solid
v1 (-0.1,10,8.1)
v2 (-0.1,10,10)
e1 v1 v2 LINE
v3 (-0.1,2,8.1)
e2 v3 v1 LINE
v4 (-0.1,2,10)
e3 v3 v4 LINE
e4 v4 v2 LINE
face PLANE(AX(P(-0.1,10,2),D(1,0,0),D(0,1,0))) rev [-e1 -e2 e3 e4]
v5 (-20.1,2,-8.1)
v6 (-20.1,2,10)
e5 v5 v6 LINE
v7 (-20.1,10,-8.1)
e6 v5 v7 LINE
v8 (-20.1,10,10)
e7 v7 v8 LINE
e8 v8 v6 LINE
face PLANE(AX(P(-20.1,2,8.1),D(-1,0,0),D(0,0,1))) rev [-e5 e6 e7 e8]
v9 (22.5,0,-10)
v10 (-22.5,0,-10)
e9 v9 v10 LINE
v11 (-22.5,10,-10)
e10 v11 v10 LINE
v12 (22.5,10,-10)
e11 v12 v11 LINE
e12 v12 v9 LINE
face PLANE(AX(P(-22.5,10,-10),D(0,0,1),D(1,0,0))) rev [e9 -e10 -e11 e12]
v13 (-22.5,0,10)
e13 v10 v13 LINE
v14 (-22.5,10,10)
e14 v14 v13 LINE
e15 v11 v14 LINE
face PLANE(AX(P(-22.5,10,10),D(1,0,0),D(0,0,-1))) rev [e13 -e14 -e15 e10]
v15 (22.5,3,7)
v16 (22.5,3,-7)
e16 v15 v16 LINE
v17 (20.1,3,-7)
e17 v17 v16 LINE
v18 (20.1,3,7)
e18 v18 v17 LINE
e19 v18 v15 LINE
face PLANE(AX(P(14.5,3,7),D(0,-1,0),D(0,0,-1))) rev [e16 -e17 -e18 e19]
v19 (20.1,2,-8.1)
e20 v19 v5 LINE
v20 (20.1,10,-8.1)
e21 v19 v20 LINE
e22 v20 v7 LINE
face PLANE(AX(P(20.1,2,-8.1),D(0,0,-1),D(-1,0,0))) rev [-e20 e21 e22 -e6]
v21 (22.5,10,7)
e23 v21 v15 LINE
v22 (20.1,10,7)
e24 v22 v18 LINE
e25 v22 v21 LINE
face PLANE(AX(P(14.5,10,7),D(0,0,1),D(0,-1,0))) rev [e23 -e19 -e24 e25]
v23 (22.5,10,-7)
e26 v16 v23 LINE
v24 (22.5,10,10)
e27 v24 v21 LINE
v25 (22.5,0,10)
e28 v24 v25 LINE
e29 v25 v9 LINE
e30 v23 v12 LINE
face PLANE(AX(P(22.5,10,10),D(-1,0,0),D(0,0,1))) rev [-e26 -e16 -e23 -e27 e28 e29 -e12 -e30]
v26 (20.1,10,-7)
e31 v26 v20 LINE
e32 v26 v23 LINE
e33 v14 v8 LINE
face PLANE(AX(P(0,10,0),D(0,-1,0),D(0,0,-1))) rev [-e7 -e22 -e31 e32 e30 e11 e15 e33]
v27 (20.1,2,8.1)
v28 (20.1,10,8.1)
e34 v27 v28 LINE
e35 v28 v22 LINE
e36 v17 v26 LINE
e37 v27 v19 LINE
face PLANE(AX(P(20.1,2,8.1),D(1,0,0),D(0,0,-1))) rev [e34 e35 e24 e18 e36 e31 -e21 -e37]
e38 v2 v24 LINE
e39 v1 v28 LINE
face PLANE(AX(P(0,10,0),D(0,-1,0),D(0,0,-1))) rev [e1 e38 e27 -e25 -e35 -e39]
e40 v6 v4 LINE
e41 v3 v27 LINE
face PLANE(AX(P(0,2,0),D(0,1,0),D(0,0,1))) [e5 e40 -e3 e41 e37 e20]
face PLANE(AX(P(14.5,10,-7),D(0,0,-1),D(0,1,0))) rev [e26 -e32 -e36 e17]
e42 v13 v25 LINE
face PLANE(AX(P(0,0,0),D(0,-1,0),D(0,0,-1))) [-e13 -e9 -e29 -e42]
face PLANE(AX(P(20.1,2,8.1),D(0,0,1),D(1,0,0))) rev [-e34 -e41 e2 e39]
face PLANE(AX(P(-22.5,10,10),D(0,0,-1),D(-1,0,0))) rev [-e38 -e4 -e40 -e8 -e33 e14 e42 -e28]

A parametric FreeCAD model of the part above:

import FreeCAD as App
import Part
import Sketcher
from FreeCAD import Vector
Q = App.Units.Quantity


def add_polygon(sketch, points):
    """Adds a closed chain of lines whose ends are joined by coincident constraints."""
    first, n = sketch.GeometryCount, len(points)
    for a, b in zip(points, points[1:] + points[:1]):
        sketch.addGeometry(Part.LineSegment(App.Vector(*a, 0), App.Vector(*b, 0)), False)
    for i in range(n):
        sketch.addConstraint(Sketcher.Constraint("Coincident", first + i, 2, first + (i + 1) % n, 1))

doc = App.newDocument("Part")
body = doc.addObject("PartDesign::Body", "Body")

sketch1 = body.newObject("Sketcher::SketchObject", "Sketch")
sketch1.AttachmentSupport = (doc.getObject("XZ_Plane"), [""])
sketch1.MapMode = "FlatFace"
add_polygon(sketch1, [(-22.5, -10), (-22.5, 10), (22.5, 10), (22.5, -10)])
sketch1.addConstraint([
    Sketcher.Constraint("Vertical", 0),
    Sketcher.Constraint("Horizontal", 1),
    Sketcher.Constraint("Vertical", 2),
    Sketcher.Constraint("Horizontal", 3),
    Sketcher.Constraint("Symmetric", 0, 2, 2, 2, -1, 1),
    Sketcher.Constraint("DistanceX", 1, 1, 1, 2, Q("45 mm")),
    Sketcher.Constraint("DistanceY", 0, 1, 0, 2, Q("20 mm")),
])
pad1 = body.newObject("PartDesign::Pad", "Pad")
pad1.Profile = sketch1
pad1.Length = 10
pad1.Reversed = True

sketch2 = body.newObject("Sketcher::SketchObject", "Sketch001")
sketch2.AttachmentSupport = (doc.getObject("XZ_Plane"), [""])
sketch2.MapMode = "FlatFace"
sketch2.AttachmentOffset = App.Placement(Vector(0, 0, -10), App.Rotation())
add_polygon(sketch2, [(-20.1, -8.1), (-20.1, 8.1), (20.1, 8.1), (20.1, -8.1)])
sketch2.addConstraint([
    Sketcher.Constraint("Vertical", 0),
    Sketcher.Constraint("Horizontal", 1),
    Sketcher.Constraint("Vertical", 2),
    Sketcher.Constraint("Horizontal", 3),
    Sketcher.Constraint("Symmetric", 0, 2, 2, 2, -1, 1),
    Sketcher.Constraint("DistanceX", 1, 1, 1, 2, Q("40.2 mm")),
    Sketcher.Constraint("DistanceY", 0, 1, 0, 2, Q("16.2 mm")),
])
pocket1 = body.newObject("PartDesign::Pocket", "Pocket")
pocket1.Profile = sketch2
pocket1.Length = 8
pocket1.Reversed = True

sketch3 = body.newObject("Sketcher::SketchObject", "Sketch002")
sketch3.AttachmentSupport = (doc.getObject("YZ_Plane"), [""])
sketch3.MapMode = "FlatFace"
sketch3.AttachmentOffset = App.Placement(Vector(0, 0, 22.5), App.Rotation())
add_polygon(sketch3, [(10, 7), (3, 7), (3, -7), (10, -7)])
sketch3.addConstraint([
    Sketcher.Constraint("Horizontal", 0),
    Sketcher.Constraint("Vertical", 1),
    Sketcher.Constraint("Horizontal", 2),
    Sketcher.Constraint("Vertical", 3),
    Sketcher.Constraint("DistanceX", 0, 2, 0, 1, Q("7 mm")),
    Sketcher.Constraint("DistanceY", 1, 2, 1, 1, Q("14 mm")),
    Sketcher.Constraint("DistanceX", -1, 1, 0, 2, Q("3 mm")),
    Sketcher.Constraint("DistanceY", -1, 1, 0, 2, Q("7 mm")),
])
pocket2 = body.newObject("PartDesign::Pocket", "Pocket001")
pocket2.Profile = sketch3
pocket2.Length = 8

sketch4 = body.newObject("Sketcher::SketchObject", "Sketch003")
sketch4.AttachmentSupport = (doc.getObject("XY_Plane"), [""])
sketch4.MapMode = "FlatFace"
sketch4.AttachmentOffset = App.Placement(Vector(0, 0, 10), App.Rotation())
add_polygon(sketch4, [(-20.1, 10), (-20.1, 2), (-0.1, 2), (-0.1, 10)])
sketch4.addConstraint([
    Sketcher.Constraint("Vertical", 0),
    Sketcher.Constraint("Horizontal", 1),
    Sketcher.Constraint("Vertical", 2),
    Sketcher.Constraint("Horizontal", 3),
    Sketcher.Constraint("DistanceX", 1, 1, 1, 2, Q("20 mm")),
    Sketcher.Constraint("DistanceY", 0, 2, 0, 1, Q("8 mm")),
    Sketcher.Constraint("DistanceY", -1, 1, 0, 2, Q("2 mm")),
    Sketcher.Constraint("DistanceX", 0, 2, -1, 1, Q("20.1 mm")),
])
pocket3 = body.newObject("PartDesign::Pocket", "Pocket002")
pocket3.Profile = sketch4
pocket3.Length = 8

doc.recompute()
